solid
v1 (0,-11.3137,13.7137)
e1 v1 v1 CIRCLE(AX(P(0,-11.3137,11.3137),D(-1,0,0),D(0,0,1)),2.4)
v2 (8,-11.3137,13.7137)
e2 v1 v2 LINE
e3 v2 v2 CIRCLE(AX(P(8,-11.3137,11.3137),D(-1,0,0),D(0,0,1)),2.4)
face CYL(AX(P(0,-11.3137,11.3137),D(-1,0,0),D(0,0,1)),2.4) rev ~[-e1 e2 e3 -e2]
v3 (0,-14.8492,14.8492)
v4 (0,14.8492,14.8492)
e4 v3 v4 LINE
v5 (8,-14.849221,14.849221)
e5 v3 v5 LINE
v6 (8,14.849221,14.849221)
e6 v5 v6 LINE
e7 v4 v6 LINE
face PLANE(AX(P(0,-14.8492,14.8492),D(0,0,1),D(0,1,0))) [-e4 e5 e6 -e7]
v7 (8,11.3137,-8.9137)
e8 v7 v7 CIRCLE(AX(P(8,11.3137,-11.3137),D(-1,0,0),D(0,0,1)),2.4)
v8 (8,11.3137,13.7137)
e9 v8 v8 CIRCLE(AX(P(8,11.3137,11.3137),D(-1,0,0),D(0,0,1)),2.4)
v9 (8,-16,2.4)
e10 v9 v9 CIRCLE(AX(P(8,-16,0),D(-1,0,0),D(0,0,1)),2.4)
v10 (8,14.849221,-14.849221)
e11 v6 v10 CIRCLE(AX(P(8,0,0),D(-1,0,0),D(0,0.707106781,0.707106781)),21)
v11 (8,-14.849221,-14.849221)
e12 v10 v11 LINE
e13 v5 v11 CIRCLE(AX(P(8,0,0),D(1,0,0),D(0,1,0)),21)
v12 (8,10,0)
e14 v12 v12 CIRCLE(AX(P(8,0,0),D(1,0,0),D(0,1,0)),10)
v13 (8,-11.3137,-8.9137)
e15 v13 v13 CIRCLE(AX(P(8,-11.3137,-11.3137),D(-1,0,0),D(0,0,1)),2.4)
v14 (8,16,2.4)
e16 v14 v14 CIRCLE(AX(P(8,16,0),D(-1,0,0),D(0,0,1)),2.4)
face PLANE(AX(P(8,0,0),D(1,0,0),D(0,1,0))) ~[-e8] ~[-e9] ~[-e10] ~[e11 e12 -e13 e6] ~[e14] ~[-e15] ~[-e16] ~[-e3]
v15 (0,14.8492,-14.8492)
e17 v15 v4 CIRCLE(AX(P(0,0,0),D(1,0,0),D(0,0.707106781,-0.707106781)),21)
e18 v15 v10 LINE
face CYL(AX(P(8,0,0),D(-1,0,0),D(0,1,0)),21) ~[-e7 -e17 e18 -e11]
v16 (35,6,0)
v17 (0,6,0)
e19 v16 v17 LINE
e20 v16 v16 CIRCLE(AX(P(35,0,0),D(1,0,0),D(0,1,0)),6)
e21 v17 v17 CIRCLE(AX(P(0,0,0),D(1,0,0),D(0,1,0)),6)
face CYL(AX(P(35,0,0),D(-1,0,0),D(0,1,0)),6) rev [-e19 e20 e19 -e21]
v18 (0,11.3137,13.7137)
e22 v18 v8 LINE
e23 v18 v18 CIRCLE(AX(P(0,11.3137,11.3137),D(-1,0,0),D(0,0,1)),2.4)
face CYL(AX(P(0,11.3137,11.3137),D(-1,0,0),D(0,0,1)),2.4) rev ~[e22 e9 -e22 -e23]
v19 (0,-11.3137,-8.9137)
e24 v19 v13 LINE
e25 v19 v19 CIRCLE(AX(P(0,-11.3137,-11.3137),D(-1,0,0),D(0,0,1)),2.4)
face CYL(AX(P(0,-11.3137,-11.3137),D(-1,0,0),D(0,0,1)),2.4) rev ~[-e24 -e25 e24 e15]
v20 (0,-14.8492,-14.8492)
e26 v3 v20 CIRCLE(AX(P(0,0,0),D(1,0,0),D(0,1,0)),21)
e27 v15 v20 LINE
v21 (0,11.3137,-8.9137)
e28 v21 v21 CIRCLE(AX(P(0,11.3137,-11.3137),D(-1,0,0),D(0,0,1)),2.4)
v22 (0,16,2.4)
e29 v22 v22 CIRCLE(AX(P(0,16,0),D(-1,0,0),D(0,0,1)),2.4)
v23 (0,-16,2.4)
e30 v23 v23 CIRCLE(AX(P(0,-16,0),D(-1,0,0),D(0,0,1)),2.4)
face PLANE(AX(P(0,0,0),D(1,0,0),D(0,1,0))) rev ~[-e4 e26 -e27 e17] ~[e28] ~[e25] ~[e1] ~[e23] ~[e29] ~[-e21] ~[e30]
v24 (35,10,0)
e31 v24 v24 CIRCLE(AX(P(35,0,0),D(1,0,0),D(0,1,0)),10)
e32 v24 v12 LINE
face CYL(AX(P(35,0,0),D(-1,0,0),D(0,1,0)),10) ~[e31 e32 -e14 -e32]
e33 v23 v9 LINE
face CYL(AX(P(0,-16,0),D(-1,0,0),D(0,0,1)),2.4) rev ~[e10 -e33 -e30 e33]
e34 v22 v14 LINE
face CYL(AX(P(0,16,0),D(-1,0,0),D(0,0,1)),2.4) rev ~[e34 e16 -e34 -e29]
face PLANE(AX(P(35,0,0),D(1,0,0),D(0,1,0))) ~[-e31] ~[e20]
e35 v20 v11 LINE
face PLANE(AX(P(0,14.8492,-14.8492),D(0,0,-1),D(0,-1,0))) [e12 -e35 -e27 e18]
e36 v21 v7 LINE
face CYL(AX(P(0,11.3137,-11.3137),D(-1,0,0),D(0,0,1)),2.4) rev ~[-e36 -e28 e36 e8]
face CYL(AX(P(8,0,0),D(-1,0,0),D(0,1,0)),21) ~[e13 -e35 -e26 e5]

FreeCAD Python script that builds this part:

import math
import FreeCAD as App
import Part
import Sketcher

V = App.Vector
Q = App.Units.Quantity

doc = App.newDocument("Part")
body = doc.addObject("PartDesign::Body", "Body")

sketch1 = doc.addObject("Sketcher::SketchObject", "Sketch")
body.addObject(sketch1)
sketch1.AttachmentSupport = (doc.XY_Plane, [""])
sketch1.MapMode = "FlatFace"
sketch1.addGeometry([
    Part.LineSegment(V(8, 21, 0), V(0, 21, 0)),
    Part.LineSegment(V(0, 21, 0), V(0, 6, 0)),
    Part.LineSegment(V(0, 6, 0), V(35, 6, 0)),
    Part.LineSegment(V(35, 6, 0), V(35, 10, 0)),
    Part.LineSegment(V(35, 10, 0), V(8, 10, 0)),
    Part.LineSegment(V(8, 10, 0), V(8, 21, 0)),
], False)
sketch1.addConstraint([
    Sketcher.Constraint("Coincident", 0, 2, 1, 1),
    Sketcher.Constraint("Coincident", 1, 2, 2, 1),
    Sketcher.Constraint("Coincident", 2, 2, 3, 1),
    Sketcher.Constraint("Coincident", 3, 2, 4, 1),
    Sketcher.Constraint("Coincident", 4, 2, 5, 1),
    Sketcher.Constraint("Coincident", 5, 2, 0, 1),
    Sketcher.Constraint("Horizontal", 0),
    Sketcher.Constraint("Vertical", 1),
    Sketcher.Constraint("Horizontal", 2),
    Sketcher.Constraint("Vertical", 3),
    Sketcher.Constraint("Horizontal", 4),
    Sketcher.Constraint("Vertical", 5),
    Sketcher.Constraint("PointOnObject", 0, 2, -2),
    Sketcher.Constraint("DistanceX", 0, 2, 0, 1, Q("8 mm")),
    Sketcher.Constraint("DistanceX", 2, 1, 2, 2, Q("35 mm")),
    Sketcher.Constraint("DistanceY", -1, 1, 0, 2, Q("21 mm")),
    Sketcher.Constraint("DistanceY", -1, 1, 1, 2, Q("6 mm")),
    Sketcher.Constraint("DistanceY", -1, 1, 3, 2, Q("10 mm")),
])
revolution = doc.addObject("PartDesign::Revolution", "Revolution")
body.addObject(revolution)
revolution.Profile = sketch1
revolution.ReferenceAxis = (sketch1, ["H_Axis"])
revolution.Angle = 360

sketch2 = doc.addObject("Sketcher::SketchObject", "Sketch001")
body.addObject(sketch2)
sketch2.AttachmentSupport = (doc.YZ_Plane, [""])
sketch2.MapMode = "FlatFace"
sketch2.addGeometry([
    Part.ArcOfCircle(Part.Circle(V(0, 0, 0), V(0, 0, 1), 21), math.radians(45), math.radians(135)),
    Part.LineSegment(V(-14.8, 14.8, 0), V(14.8, 14.8, 0)),
    Part.LineSegment(V(-14.8, -14.8, 0), V(14.8, -14.8, 0)),
    Part.ArcOfCircle(Part.Circle(V(0, 0, 0), V(0, 0, 1), 21), math.radians(-135), math.radians(-45)),
    Part.Circle(V(16, 0, 0), V(0, 0, 1), 2.4),
    Part.Circle(V(11.3, 11.3, 0), V(0, 0, 1), 2.4),
    Part.Circle(V(-11.3, 11.3, 0), V(0, 0, 1), 2.4),
    Part.Circle(V(11.3, -11.3, 0), V(0, 0, 1), 2.4),
    Part.Circle(V(-16, 0, 0), V(0, 0, 1), 2.4),
    Part.Circle(V(-11.3, -11.3, 0), V(0, 0, 1), 2.4),
], False)
sketch2.addConstraint([
    Sketcher.Constraint("Coincident", 0, 1, 1, 2),
    Sketcher.Constraint("Coincident", 1, 1, 0, 2),
    Sketcher.Constraint("Coincident", 2, 1, 3, 1),
    Sketcher.Constraint("Coincident", 3, 2, 2, 2),
    Sketcher.Constraint("Horizontal", 1),
    Sketcher.Constraint("Horizontal", 2),
    Sketcher.Constraint("Coincident", 0, 3, -1, 1),
    Sketcher.Constraint("Coincident", 3, 3, -1, 1),
    Sketcher.Constraint("Equal", 0, 3),
    Sketcher.Constraint("Equal", 4, 5),
    Sketcher.Constraint("Equal", 5, 6),
    Sketcher.Constraint("Equal", 6, 7),
    Sketcher.Constraint("Equal", 7, 8),
    Sketcher.Constraint("Equal", 8, 9),
    Sketcher.Constraint("Symmetric", 6, 3, 7, 3, -1, 1),
    Sketcher.Constraint("Symmetric", 4, 3, 8, 3, -1, 1),
    Sketcher.Constraint("Symmetric", 5, 3, 9, 3, -1, 1),
    Sketcher.Constraint("Symmetric", 5, 3, 6, 3, -2),
    Sketcher.Constraint("PointOnObject", 4, 3, -1),
    Sketcher.Constraint("Vertical", 1, 1, 2, 1),
    Sketcher.Constraint("Diameter", 4, Q("4.8 mm")),
    Sketcher.Constraint("Radius", 0, Q("21 mm")),
    Sketcher.Constraint("DistanceX", -1, 1, 4, 3, Q("16 mm")),
    Sketcher.Constraint("DistanceX", 1, 1, 1, 2, Q("29.6984 mm")),
    Sketcher.Constraint("DistanceY", 7, 3, 0, 1, Q("26.163 mm")),
    Sketcher.Constraint("DistanceX", 1, 1, 5, 3, Q("26.163 mm")),
])
pocket1 = doc.addObject("PartDesign::Pocket", "Pocket")
body.addObject(pocket1)
pocket1.Profile = sketch2
pocket1.Length = 10
pocket1.Reversed = True

doc.recompute()
